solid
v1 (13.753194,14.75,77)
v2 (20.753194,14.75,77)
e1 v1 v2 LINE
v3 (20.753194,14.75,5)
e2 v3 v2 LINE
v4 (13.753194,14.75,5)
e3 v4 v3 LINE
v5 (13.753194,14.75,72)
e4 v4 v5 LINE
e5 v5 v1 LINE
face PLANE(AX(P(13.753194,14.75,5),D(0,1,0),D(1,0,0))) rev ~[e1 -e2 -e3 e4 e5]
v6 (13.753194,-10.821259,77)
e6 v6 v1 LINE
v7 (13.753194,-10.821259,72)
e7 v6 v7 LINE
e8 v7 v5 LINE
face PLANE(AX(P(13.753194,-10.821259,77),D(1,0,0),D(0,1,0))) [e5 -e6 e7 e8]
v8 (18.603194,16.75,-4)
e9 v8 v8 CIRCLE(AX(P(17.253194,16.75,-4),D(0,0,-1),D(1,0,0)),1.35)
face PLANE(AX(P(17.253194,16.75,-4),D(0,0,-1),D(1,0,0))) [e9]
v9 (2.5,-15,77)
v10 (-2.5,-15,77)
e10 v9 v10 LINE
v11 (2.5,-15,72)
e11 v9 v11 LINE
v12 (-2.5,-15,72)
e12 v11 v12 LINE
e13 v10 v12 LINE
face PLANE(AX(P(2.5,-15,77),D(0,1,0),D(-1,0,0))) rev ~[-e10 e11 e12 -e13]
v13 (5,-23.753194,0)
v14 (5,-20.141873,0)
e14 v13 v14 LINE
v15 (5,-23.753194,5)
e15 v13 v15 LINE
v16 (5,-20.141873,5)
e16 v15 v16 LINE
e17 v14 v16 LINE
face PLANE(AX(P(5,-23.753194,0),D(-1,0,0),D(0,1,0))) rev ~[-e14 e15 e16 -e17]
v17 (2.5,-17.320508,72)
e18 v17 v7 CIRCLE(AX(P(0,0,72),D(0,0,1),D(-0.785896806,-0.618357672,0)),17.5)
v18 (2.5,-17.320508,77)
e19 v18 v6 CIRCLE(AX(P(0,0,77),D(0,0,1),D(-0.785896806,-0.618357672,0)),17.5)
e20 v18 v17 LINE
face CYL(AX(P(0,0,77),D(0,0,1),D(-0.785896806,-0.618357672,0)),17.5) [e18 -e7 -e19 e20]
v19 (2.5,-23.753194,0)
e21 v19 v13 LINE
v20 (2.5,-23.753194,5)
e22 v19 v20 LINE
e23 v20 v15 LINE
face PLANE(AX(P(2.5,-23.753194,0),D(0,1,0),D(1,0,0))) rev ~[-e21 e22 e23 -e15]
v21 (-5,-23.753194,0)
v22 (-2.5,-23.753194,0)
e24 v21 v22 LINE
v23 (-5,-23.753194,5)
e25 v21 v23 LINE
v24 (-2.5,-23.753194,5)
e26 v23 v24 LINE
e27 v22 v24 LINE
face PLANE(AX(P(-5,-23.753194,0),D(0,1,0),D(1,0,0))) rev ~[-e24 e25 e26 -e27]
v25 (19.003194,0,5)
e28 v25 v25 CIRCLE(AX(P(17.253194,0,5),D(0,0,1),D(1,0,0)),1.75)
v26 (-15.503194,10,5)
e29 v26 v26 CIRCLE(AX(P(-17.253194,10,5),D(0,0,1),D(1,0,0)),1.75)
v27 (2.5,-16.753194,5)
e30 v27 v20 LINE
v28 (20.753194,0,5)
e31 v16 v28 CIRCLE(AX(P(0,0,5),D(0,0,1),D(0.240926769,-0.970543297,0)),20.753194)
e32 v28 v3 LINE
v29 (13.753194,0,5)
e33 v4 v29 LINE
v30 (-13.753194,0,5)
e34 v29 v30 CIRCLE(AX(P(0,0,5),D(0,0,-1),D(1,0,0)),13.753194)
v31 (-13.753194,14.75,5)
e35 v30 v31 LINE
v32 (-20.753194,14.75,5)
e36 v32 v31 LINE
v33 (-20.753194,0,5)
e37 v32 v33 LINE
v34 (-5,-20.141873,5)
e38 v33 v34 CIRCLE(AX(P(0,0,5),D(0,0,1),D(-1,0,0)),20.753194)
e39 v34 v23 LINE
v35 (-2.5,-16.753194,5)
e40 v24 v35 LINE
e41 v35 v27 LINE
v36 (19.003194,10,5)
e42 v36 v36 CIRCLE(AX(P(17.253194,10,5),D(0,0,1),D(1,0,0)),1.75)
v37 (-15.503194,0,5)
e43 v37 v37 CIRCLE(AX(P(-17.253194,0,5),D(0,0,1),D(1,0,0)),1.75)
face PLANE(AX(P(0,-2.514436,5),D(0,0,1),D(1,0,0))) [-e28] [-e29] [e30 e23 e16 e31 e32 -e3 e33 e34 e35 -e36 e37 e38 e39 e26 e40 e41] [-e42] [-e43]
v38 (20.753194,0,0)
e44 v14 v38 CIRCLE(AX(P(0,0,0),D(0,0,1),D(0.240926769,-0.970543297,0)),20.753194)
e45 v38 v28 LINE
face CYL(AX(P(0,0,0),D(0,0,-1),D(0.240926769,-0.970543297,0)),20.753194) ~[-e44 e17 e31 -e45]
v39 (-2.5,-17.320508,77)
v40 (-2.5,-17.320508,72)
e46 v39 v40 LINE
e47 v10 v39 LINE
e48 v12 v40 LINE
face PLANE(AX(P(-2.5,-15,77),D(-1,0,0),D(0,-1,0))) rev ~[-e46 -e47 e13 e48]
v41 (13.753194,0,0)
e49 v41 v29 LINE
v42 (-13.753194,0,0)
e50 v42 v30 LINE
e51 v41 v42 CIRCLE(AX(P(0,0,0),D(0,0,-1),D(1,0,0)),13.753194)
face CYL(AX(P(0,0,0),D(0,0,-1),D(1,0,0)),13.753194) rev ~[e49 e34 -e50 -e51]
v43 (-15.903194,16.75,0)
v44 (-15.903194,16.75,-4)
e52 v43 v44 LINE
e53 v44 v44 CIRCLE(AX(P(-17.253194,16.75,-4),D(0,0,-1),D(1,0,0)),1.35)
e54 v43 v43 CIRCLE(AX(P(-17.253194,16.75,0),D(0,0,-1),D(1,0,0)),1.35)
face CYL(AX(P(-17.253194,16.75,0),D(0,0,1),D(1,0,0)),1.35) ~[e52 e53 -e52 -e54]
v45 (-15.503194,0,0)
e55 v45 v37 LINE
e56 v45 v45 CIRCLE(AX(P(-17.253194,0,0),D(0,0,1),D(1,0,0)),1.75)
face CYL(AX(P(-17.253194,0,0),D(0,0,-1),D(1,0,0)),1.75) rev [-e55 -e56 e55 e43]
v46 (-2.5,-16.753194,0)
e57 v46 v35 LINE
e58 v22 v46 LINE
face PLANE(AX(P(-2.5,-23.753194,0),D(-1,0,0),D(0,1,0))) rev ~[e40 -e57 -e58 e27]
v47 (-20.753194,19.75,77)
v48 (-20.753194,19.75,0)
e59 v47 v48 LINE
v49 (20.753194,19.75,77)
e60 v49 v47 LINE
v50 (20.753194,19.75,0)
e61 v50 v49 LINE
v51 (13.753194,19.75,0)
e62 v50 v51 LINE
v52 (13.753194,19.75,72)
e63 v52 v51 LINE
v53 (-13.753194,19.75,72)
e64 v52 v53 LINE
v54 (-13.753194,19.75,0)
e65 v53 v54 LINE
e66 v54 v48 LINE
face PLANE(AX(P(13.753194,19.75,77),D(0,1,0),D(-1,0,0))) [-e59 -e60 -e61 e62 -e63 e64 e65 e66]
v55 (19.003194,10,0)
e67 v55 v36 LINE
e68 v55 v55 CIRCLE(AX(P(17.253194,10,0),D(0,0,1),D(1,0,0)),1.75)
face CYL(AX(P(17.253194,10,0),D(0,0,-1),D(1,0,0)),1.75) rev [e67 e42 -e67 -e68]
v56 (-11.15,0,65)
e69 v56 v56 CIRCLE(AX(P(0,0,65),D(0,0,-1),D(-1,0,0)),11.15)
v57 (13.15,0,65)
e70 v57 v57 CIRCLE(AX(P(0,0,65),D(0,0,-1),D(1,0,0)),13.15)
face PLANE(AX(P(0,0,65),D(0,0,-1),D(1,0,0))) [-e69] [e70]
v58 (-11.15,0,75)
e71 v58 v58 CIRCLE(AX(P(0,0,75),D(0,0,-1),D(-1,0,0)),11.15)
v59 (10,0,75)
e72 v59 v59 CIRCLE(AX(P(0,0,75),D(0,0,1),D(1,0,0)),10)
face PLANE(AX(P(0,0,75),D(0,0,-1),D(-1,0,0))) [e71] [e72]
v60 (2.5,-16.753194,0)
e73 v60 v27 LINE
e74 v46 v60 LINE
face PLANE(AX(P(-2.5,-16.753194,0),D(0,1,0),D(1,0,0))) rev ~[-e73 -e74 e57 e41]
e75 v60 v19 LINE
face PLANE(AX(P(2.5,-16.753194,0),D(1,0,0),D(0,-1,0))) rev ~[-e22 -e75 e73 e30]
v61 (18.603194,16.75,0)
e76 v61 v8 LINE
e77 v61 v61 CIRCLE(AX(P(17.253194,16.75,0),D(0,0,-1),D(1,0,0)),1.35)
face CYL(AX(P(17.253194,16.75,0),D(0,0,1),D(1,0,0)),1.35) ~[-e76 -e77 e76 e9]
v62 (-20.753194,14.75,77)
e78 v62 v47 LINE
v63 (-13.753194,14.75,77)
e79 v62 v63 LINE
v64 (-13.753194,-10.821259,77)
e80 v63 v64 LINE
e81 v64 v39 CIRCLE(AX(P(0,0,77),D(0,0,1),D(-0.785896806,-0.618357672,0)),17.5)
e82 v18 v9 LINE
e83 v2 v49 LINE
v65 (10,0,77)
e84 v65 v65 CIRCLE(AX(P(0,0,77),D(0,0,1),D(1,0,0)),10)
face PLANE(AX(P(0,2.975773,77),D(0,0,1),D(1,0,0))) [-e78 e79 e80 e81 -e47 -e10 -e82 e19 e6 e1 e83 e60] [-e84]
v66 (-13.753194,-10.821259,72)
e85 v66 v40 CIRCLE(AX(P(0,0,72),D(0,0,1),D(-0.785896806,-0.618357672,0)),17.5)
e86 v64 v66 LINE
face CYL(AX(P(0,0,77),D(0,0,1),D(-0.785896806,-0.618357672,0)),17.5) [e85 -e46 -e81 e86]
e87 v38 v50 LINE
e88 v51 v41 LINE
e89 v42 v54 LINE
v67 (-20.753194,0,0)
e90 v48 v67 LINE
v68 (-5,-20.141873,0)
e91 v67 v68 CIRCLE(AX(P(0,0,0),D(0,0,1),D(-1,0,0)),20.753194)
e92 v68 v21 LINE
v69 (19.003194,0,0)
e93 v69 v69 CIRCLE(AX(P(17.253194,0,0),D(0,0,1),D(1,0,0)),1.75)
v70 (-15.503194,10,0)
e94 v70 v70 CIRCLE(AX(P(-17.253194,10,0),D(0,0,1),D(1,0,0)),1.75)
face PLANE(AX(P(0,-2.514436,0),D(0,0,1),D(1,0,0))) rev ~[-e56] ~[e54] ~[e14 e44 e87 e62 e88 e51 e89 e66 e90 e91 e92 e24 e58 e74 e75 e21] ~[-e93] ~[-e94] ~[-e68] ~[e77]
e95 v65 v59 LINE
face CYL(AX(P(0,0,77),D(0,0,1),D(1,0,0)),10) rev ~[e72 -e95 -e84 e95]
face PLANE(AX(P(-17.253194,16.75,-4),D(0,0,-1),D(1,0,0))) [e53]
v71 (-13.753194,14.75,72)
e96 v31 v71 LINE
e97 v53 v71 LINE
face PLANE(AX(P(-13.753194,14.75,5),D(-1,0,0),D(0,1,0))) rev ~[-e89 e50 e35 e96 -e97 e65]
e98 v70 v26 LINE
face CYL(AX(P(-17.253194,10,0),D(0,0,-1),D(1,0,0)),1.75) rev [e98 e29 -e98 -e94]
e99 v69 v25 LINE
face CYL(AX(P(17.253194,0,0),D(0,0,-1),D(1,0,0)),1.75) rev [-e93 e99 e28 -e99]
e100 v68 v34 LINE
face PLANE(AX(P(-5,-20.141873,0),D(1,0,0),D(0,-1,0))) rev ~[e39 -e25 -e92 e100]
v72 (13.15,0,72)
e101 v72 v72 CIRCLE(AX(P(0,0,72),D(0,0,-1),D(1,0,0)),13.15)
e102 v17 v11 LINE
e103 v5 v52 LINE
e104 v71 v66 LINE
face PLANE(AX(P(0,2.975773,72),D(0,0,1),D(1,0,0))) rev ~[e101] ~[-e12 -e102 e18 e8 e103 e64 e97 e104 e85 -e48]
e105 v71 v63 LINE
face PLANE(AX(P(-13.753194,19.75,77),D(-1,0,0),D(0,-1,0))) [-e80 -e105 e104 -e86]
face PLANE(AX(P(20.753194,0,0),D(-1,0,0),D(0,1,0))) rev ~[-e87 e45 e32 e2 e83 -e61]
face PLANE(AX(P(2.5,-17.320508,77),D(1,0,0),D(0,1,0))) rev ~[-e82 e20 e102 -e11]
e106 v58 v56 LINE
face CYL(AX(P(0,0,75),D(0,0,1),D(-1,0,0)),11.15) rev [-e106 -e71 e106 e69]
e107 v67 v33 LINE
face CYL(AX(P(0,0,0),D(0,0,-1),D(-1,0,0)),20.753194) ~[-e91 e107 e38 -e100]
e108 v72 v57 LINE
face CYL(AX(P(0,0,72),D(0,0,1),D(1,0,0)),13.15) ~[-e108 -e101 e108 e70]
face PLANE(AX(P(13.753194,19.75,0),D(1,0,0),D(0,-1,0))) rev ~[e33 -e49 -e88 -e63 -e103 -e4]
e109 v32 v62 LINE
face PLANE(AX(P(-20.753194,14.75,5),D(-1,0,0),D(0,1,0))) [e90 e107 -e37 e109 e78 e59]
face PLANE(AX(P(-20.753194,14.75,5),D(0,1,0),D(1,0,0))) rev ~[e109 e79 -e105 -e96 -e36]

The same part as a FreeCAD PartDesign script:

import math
import FreeCAD as App
import Part
import Sketcher

V = App.Vector
Q = App.Units.Quantity


def add_polygon(sketch, points):
    """Adds a closed chain of lines whose ends are joined by coincident constraints."""
    first, n = sketch.GeometryCount, len(points)
    for a, b in zip(points, points[1:] + points[:1]):
        sketch.addGeometry(Part.LineSegment(App.Vector(*a, 0), App.Vector(*b, 0)), False)
    for i in range(n):
        sketch.addConstraint(Sketcher.Constraint("Coincident", first + i, 2, first + (i + 1) % n, 1))

doc = App.newDocument("Part")
params = doc.addObject("Spreadsheet::Sheet", "Params")
for row, (alias, value) in enumerate([
    ("sketch1_diameter", "3.5 mm"),
    ("sketch1_width", "7 mm"),
    ("sketch1_width2", "5 mm"),
    ("sketch1_width3", "2.5 mm"),
    ("sketch1_height", "19.75 mm"),
    ("pad1_length", "5 mm"),
    ("sketch2_diameter", "2.7 mm"),
    ("pad2_length", "4 mm"),
    ("sketch3_width", "7 mm"),
    ("sketch3_height", "5 mm"),
    ("pad3_length", "72 mm"),
    ("sketch4_diameter", "20 mm"),
    ("sketch4_radius", "17.5 mm"),
    ("pad4_length", "5 mm"),
    ("sketch5_diameter", "26.3 mm"),
    ("sketch5_diameter2", "22.3 mm"),
    ("pad5_length", "7 mm"),
    ("sketch6_diameter", "22.3 mm"),
    ("pocket1_length", "3 mm"),
    ("sketch7_radius", "17.5 mm"),
    ("sketch7_width", "5 mm"),
    ("pocket2_length", "5 mm"),
], start=1):
    params.set(f"A{row}", alias)
    params.set(f"B{row}", "=" + value)
    params.setAlias(f"B{row}", alias)

body = doc.addObject("PartDesign::Body", "Body")

sketch1 = body.newObject("Sketcher::SketchObject", "Sketch")
sketch1.AttachmentSupport = (doc.getObject("XY_Plane"), [""])
sketch1.MapMode = "FlatFace"
sketch1.addGeometry([
    Part.LineSegment(V(-13.8, 0, 0), V(-13.8, 19.8, 0)),
    Part.LineSegment(V(-13.8, 19.8, 0), V(-20.8, 19.8, 0)),
    Part.LineSegment(V(-20.8, 19.8, 0), V(-20.8, 0, 0)),
    Part.ArcOfCircle(Part.Circle(V(0, 0, 0), V(0, 0, 1), 20.8), math.radians(180), math.radians(256)),
    Part.LineSegment(V(-5, -20.1, 0), V(-5, -23.8, 0)),
    Part.LineSegment(V(-5, -23.8, 0), V(-2.5, -23.8, 0)),
    Part.LineSegment(V(-2.5, -23.8, 0), V(-2.5, -16.8, 0)),
    Part.LineSegment(V(-2.5, -16.8, 0), V(2.5, -16.8, 0)),
    Part.LineSegment(V(2.5, -16.8, 0), V(2.5, -23.8, 0)),
    Part.LineSegment(V(2.5, -23.8, 0), V(5, -23.8, 0)),
    Part.LineSegment(V(5, -23.8, 0), V(5, -20.1, 0)),
    Part.ArcOfCircle(Part.Circle(V(0, 0, 0), V(0, 0, 1), 20.8), math.radians(-76), math.radians(0)),
    Part.LineSegment(V(20.8, 0, 0), V(20.8, 19.8, 0)),
    Part.LineSegment(V(20.8, 19.8, 0), V(13.8, 19.8, 0)),
    Part.LineSegment(V(13.8, 19.8, 0), V(13.8, 0, 0)),
    Part.ArcOfCircle(Part.Circle(V(0, 0, 0), V(0, 0, 1), 13.8), math.radians(180), math.radians(360)),
    Part.Circle(V(-17.3, 0, 0), V(0, 0, 1), 1.8),
    Part.Circle(V(17.3, 0, 0), V(0, 0, 1), 1.8),
    Part.Circle(V(-17.3, 10, 0), V(0, 0, 1), 1.8),
    Part.Circle(V(17.3, 10, 0), V(0, 0, 1), 1.8),
], False)
sketch1.addConstraint([
    Sketcher.Constraint("Coincident", 0, 2, 1, 1),
    Sketcher.Constraint("Coincident", 1, 2, 2, 1),
    Sketcher.Constraint("Tangent", 2, 2, 3, 1),
    Sketcher.Constraint("Coincident", 3, 2, 4, 1),
    Sketcher.Constraint("Coincident", 4, 2, 5, 1),
    Sketcher.Constraint("Coincident", 5, 2, 6, 1),
    Sketcher.Constraint("Coincident", 6, 2, 7, 1),
    Sketcher.Constraint("Coincident", 7, 2, 8, 1),
    Sketcher.Constraint("Coincident", 8, 2, 9, 1),
    Sketcher.Constraint("Coincident", 9, 2, 10, 1),
    Sketcher.Constraint("Coincident", 10, 2, 11, 1),
    Sketcher.Constraint("Tangent", 11, 2, 12, 1),
    Sketcher.Constraint("Coincident", 12, 2, 13, 1),
    Sketcher.Constraint("Coincident", 13, 2, 14, 1),
    Sketcher.Constraint("Tangent", 14, 2, 15, 2),
    Sketcher.Constraint("Tangent", 15, 1, 0, 1),
    Sketcher.Constraint("Vertical", 0),
    Sketcher.Constraint("Horizontal", 1),
    Sketcher.Constraint("Vertical", 2),
    Sketcher.Constraint("Vertical", 4),
    Sketcher.Constraint("Horizontal", 5),
    Sketcher.Constraint("Vertical", 6),
    Sketcher.Constraint("Horizontal", 7),
    Sketcher.Constraint("Vertical", 8),
    Sketcher.Constraint("Horizontal", 9),
    Sketcher.Constraint("Vertical", 10),
    Sketcher.Constraint("Vertical", 12),
    Sketcher.Constraint("Horizontal", 13),
    Sketcher.Constraint("Vertical", 14),
    Sketcher.Constraint("Coincident", 3, 3, -1, 1),
    Sketcher.Constraint("Coincident", 11, 3, -1, 1),
    Sketcher.Constraint("Coincident", 15, 3, -1, 1),
    Sketcher.Constraint("Equal", 3, 11),
    Sketcher.Constraint("Equal", 16, 17),
    Sketcher.Constraint("Equal", 17, 18),
    Sketcher.Constraint("Equal", 18, 19),
    Sketcher.Constraint("Symmetric", 16, 3, 17, 3, -1, 1),
    Sketcher.Constraint("Symmetric", 18, 3, 19, 3, -2),
    Sketcher.Constraint("Symmetric", 5, 2, 8, 2, -2),
    Sketcher.Constraint("PointOnObject", 16, 3, -1),
    Sketcher.Constraint("Horizontal", 3, 2, 10, 2),
    Sketcher.Constraint("Horizontal", 1, 2, 12, 2),
    Sketcher.Constraint("Vertical", 16, 3, 18, 3),
    Sketcher.Constraint("Equal", 13, 6),
    Sketcher.Constraint("Diameter", 16, Q("3.5 mm")),
    Sketcher.Constraint("DistanceX", 1, 2, 1, 1, Q("7 mm")),
    Sketcher.Constraint("DistanceX", 7, 1, 7, 2, Q("5 mm")),
    Sketcher.Constraint("DistanceX", 5, 1, 5, 2, Q("2.5 mm")),
    Sketcher.Constraint("DistanceY", -1, 1, 18, 3, Q("10 mm")),
    Sketcher.Constraint("DistanceY", 0, 1, 0, 2, Q("19.75 mm")),
    Sketcher.Constraint("DistanceX", 18, 3, 0, 2, Q("3.5 mm")),
    Sketcher.Constraint("Radius", 3, Q("20.753194 mm")),
    Sketcher.Constraint("DistanceY", 4, 2, 4, 1, Q("3.611321 mm")),
])
sketch1.setExpression("Constraints[44]", "Params.sketch1_diameter")
sketch1.setExpression("Constraints[45]", "Params.sketch1_width")
sketch1.setExpression("Constraints[46]", "Params.sketch1_width2")
sketch1.setExpression("Constraints[47]", "Params.sketch1_width3")
sketch1.setExpression("Constraints[49]", "Params.sketch1_height")
pad1 = body.newObject("PartDesign::Pad", "Pad")
pad1.Profile = sketch1
pad1.setExpression("Length", "Params.pad1_length")

sketch2 = body.newObject("Sketcher::SketchObject", "Sketch001")
sketch2.AttachmentSupport = (doc.getObject("XY_Plane"), [""])
sketch2.MapMode = "FlatFace"
sketch2.addGeometry([
    Part.Circle(V(17.3, 16.8, 0), V(0, 0, 1), 1.4),
    Part.Circle(V(-17.3, 16.8, 0), V(0, 0, 1), 1.4),
], False)
sketch2.addConstraint([
    Sketcher.Constraint("Equal", 0, 1),
    Sketcher.Constraint("Symmetric", 0, 3, 1, 3, -2),
    Sketcher.Constraint("Diameter", 0, Q("2.7 mm")),
    Sketcher.Constraint("DistanceY", -1, 1, 0, 3, Q("16.75 mm")),
    Sketcher.Constraint("DistanceX", 1, 3, 0, 3, Q("34.506388 mm")),
])
sketch2.setExpression("Constraints[2]", "Params.sketch2_diameter")
pad2 = body.newObject("PartDesign::Pad", "Pad001")
pad2.Profile = sketch2
pad2.setExpression("Length", "Params.pad2_length")
pad2.Reversed = True

sketch3 = body.newObject("Sketcher::SketchObject", "Sketch002")
sketch3.AttachmentSupport = (doc.getObject("XY_Plane"), [""])
sketch3.MapMode = "FlatFace"
sketch3.AttachmentOffset = App.Placement(V(0, 0, 5), App.Rotation())
add_polygon(sketch3, [(-21, 20), (-21, 15), (-14, 15), (-14, 20)])
add_polygon(sketch3, [(14, 20), (14, 15), (21, 15), (21, 20)])
sketch3.addConstraint([
    Sketcher.Constraint("Vertical", 0),
    Sketcher.Constraint("Horizontal", 1),
    Sketcher.Constraint("Vertical", 2),
    Sketcher.Constraint("Horizontal", 3),
    Sketcher.Constraint("Vertical", 4),
    Sketcher.Constraint("Horizontal", 5),
    Sketcher.Constraint("Vertical", 6),
    Sketcher.Constraint("Horizontal", 7),
    Sketcher.Constraint("Symmetric", 1, 2, 4, 2, -2),
    Sketcher.Constraint("Symmetric", 3, 2, 6, 2, -2),
    Sketcher.Constraint("DistanceX", 1, 1, 1, 2, Q("7 mm")),
    Sketcher.Constraint("DistanceY", 0, 2, 0, 1, Q("5 mm")),
    Sketcher.Constraint("DistanceY", -1, 1, 0, 2, Q("14.75 mm")),
    Sketcher.Constraint("DistanceX", 1, 2, 4, 2, Q("27.506388 mm")),
])
sketch3.setExpression("Constraints[18]", "Params.sketch3_width")
sketch3.setExpression("Constraints[19]", "Params.sketch3_height")
pad3 = body.newObject("PartDesign::Pad", "Pad002")
pad3.Profile = sketch3
pad3.setExpression("Length", "Params.pad3_length")

sketch4 = body.newObject("Sketcher::SketchObject", "Sketch003")
sketch4.AttachmentSupport = (doc.getObject("XY_Plane"), [""])
sketch4.MapMode = "FlatFace"
sketch4.AttachmentOffset = App.Placement(V(0, 0, 77), App.Rotation())
sketch4.addGeometry([
    Part.LineSegment(V(-14, 20, 0), V(-14, -11, 0)),
    Part.ArcOfCircle(Part.Circle(V(0, 0, 0), V(0, 0, 1), 17), math.radians(-142), math.radians(-38)),
    Part.LineSegment(V(14, -11, 0), V(14, 20, 0)),
    Part.LineSegment(V(14, 20, 0), V(-14, 20, 0)),
    Part.Circle(V(0, 0, 0), V(0, 0, 1), 10),
], False)
sketch4.addConstraint([
    Sketcher.Constraint("Coincident", 0, 2, 1, 1),
    Sketcher.Constraint("Coincident", 1, 2, 2, 1),
    Sketcher.Constraint("Coincident", 2, 2, 3, 1),
    Sketcher.Constraint("Coincident", 3, 2, 0, 1),
    Sketcher.Constraint("Vertical", 0),
    Sketcher.Constraint("Vertical", 2),
    Sketcher.Constraint("Horizontal", 3),
    Sketcher.Constraint("Coincident", 1, 3, -1, 1),
    Sketcher.Constraint("Coincident", 4, 3, -1, 1),
    Sketcher.Constraint("Horizontal", 0, 2, 1, 2),
    Sketcher.Constraint("Diameter", 4, Q("20 mm")),
    Sketcher.Constraint("Radius", 1, Q("17.5 mm")),
    Sketcher.Constraint("DistanceY", -1, 1, 2, 2, Q("19.75 mm")),
    Sketcher.Constraint("DistanceX", 3, 2, 3, 1, Q("27.506388 mm")),
])
sketch4.setExpression("Constraints[10]", "Params.sketch4_diameter")
sketch4.setExpression("Constraints[11]", "Params.sketch4_radius")
pad4 = body.newObject("PartDesign::Pad", "Pad003")
pad4.Profile = sketch4
pad4.setExpression("Length", "Params.pad4_length")
pad4.Reversed = True

sketch5 = body.newObject("Sketcher::SketchObject", "Sketch004")
sketch5.AttachmentSupport = (doc.getObject("XY_Plane"), [""])
sketch5.MapMode = "FlatFace"
sketch5.AttachmentOffset = App.Placement(V(0, 0, 72), App.Rotation())
sketch5.addGeometry([
    Part.Circle(V(0, 0, 0), V(0, 0, 1), 13),
    Part.Circle(V(0, 0, 0), V(0, 0, 1), 11),
], False)
sketch5.addConstraint([
    Sketcher.Constraint("Coincident", 0, 3, -1, 1),
    Sketcher.Constraint("Coincident", 1, 3, -1, 1),
    Sketcher.Constraint("Diameter", 0, Q("26.3 mm")),
    Sketcher.Constraint("Diameter", 1, Q("22.3 mm")),
])
sketch5.setExpression("Constraints[2]", "Params.sketch5_diameter")
sketch5.setExpression("Constraints[3]", "Params.sketch5_diameter2")
pad5 = body.newObject("PartDesign::Pad", "Pad004")
pad5.Profile = sketch5
pad5.setExpression("Length", "Params.pad5_length")
pad5.Reversed = True

sketch6 = body.newObject("Sketcher::SketchObject", "Sketch005")
sketch6.AttachmentSupport = (doc.getObject("XY_Plane"), [""])
sketch6.MapMode = "FlatFace"
sketch6.AttachmentOffset = App.Placement(V(0, 0, 75), App.Rotation())
sketch6.addGeometry(Part.Circle(V(0, 0, 0), V(0, 0, 1), 11), False)
sketch6.addConstraint([
    Sketcher.Constraint("Coincident", 0, 3, -1, 1),
    Sketcher.Constraint("Diameter", 0, Q("22.3 mm")),
])
sketch6.setExpression("Constraints[1]", "Params.sketch6_diameter")
pocket1 = body.newObject("PartDesign::Pocket", "Pocket")
pocket1.Profile = sketch6
pocket1.setExpression("Length", "Params.pocket1_length")

sketch7 = body.newObject("Sketcher::SketchObject", "Sketch006")
sketch7.AttachmentSupport = (doc.getObject("XY_Plane"), [""])
sketch7.MapMode = "FlatFace"
sketch7.AttachmentOffset = App.Placement(V(0, 0, 77), App.Rotation())
sketch7.addGeometry([
    Part.LineSegment(V(2.5, -17.3, 0), V(2.5, -15, 0)),
    Part.LineSegment(V(2.5, -15, 0), V(-2.5, -15, 0)),
    Part.LineSegment(V(-2.5, -15, 0), V(-2.5, -17.3, 0)),
    Part.ArcOfCircle(Part.Circle(V(0, 0, 0), V(0, 0, 1), 17.5), math.radians(-98.21), math.radians(-81.79)),
], False)
sketch7.addConstraint([
    Sketcher.Constraint("Coincident", 0, 2, 1, 1),
    Sketcher.Constraint("Coincident", 1, 2, 2, 1),
    Sketcher.Constraint("Coincident", 2, 2, 3, 1),
    Sketcher.Constraint("Coincident", 3, 2, 0, 1),
    Sketcher.Constraint("Vertical", 0),
    Sketcher.Constraint("Horizontal", 1),
    Sketcher.Constraint("Vertical", 2),
    Sketcher.Constraint("Coincident", 3, 3, -1, 1),
    Sketcher.Constraint("Horizontal", 2, 2, 3, 2),
    Sketcher.Constraint("Radius", 3, Q("17.5 mm")),
    Sketcher.Constraint("DistanceX", 1, 2, 1, 1, Q("5 mm")),
    Sketcher.Constraint("DistanceY", 0, 2, -1, 1, Q("15 mm")),
])
sketch7.setExpression("Constraints[9]", "Params.sketch7_radius")
sketch7.setExpression("Constraints[10]", "Params.sketch7_width")
pocket2 = body.newObject("PartDesign::Pocket", "Pocket001")
pocket2.Profile = sketch7
pocket2.setExpression("Length", "Params.pocket2_length")

doc.recompute()
